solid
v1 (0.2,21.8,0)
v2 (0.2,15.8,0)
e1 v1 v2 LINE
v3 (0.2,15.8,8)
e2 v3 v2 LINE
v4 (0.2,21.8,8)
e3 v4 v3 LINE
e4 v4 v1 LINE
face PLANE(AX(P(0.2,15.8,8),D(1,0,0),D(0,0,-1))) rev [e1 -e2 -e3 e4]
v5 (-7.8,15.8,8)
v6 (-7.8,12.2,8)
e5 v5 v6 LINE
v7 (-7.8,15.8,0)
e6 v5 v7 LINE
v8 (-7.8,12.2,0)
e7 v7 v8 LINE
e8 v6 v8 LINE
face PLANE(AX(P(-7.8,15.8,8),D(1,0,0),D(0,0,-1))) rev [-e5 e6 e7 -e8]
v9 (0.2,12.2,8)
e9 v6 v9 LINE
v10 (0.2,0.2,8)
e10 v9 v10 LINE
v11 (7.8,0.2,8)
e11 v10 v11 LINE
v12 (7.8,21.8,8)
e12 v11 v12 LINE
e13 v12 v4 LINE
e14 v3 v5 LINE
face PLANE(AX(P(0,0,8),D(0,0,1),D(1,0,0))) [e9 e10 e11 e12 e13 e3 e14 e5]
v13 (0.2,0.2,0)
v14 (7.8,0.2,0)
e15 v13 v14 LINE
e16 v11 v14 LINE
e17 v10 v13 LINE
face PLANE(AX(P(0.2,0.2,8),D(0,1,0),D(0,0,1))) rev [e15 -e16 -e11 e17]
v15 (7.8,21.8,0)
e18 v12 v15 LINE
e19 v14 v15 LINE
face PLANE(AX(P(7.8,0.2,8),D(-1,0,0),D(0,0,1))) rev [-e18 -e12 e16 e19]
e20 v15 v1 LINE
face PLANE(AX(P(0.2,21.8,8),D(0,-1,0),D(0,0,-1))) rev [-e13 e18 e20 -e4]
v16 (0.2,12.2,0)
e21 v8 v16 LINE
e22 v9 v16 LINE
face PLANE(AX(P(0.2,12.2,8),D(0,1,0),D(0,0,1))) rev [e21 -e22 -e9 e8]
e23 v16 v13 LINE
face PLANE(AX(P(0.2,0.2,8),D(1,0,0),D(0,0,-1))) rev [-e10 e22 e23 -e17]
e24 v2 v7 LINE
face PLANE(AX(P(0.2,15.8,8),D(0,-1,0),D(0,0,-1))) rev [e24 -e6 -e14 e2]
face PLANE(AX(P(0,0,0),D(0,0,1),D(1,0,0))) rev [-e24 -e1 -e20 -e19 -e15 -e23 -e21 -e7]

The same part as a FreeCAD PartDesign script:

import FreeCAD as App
import Part
import Sketcher

doc = App.newDocument("Part")
body = doc.addObject("PartDesign::Body", "Body")

# Sketch on XY plane
sketch1 = body.newObject("Sketcher::SketchObject", "Sketch")
sketch1.AttachmentSupport = (doc.getObject("XY_Plane"), [""])
sketch1.MapMode = "FlatFace"
sketch1.addGeometry(Part.LineSegment(App.Vector(0.2, 0.2, 0), App.Vector(7.8, 0.2, 0)), False)
sketch1.addGeometry(Part.LineSegment(App.Vector(7.8, 0.2, 0), App.Vector(7.8, 21.8, 0)), False)
sketch1.addGeometry(Part.LineSegment(App.Vector(7.8, 21.8, 0), App.Vector(0.2, 21.8, 0)), False)
sketch1.addGeometry(Part.LineSegment(App.Vector(0.2, 21.8, 0), App.Vector(0.2, 15.8, 0)), False)
sketch1.addGeometry(Part.LineSegment(App.Vector(0.2, 15.8, 0), App.Vector(-7.8, 15.8, 0)), False)
sketch1.addGeometry(Part.LineSegment(App.Vector(-7.8, 15.8, 0), App.Vector(-7.8, 12.2, 0)), False)
sketch1.addGeometry(Part.LineSegment(App.Vector(-7.8, 12.2, 0), App.Vector(0.2, 12.2, 0)), False)
sketch1.addGeometry(Part.LineSegment(App.Vector(0.2, 12.2, 0), App.Vector(0.2, 0.2, 0)), False)
sketch1.addConstraint(Sketcher.Constraint("Coincident", 0, 2, 1, 1))
sketch1.addConstraint(Sketcher.Constraint("Coincident", 1, 2, 2, 1))
sketch1.addConstraint(Sketcher.Constraint("Coincident", 2, 2, 3, 1))
sketch1.addConstraint(Sketcher.Constraint("Coincident", 3, 2, 4, 1))
sketch1.addConstraint(Sketcher.Constraint("Coincident", 4, 2, 5, 1))
sketch1.addConstraint(Sketcher.Constraint("Coincident", 5, 2, 6, 1))
sketch1.addConstraint(Sketcher.Constraint("Coincident", 6, 2, 7, 1))
sketch1.addConstraint(Sketcher.Constraint("Coincident", 7, 2, 0, 1))
sketch1.addConstraint(Sketcher.Constraint("Horizontal", 0))
sketch1.addConstraint(Sketcher.Constraint("Vertical", 1))
sketch1.addConstraint(Sketcher.Constraint("Horizontal", 2))
sketch1.addConstraint(Sketcher.Constraint("Vertical", 3))
sketch1.addConstraint(Sketcher.Constraint("Horizontal", 4))
sketch1.addConstraint(Sketcher.Constraint("Vertical", 5))
sketch1.addConstraint(Sketcher.Constraint("Horizontal", 6))
sketch1.addConstraint(Sketcher.Constraint("Vertical", 7))
sketch1.addConstraint(Sketcher.Constraint("Vertical", 3, 2, 6, 2))
sketch1.addConstraint(Sketcher.Constraint("DistanceX", 4, 2, 4, 1, 8.0))
sketch1.addConstraint(Sketcher.Constraint("DistanceY", 3, 2, 3, 1, 6.0))
sketch1.addConstraint(Sketcher.Constraint("DistanceY", 7, 2, 7, 1, 12.0))
sketch1.addConstraint(Sketcher.Constraint("DistanceX", 0, 1, 0, 2, 7.6))
sketch1.addConstraint(Sketcher.Constraint("DistanceY", 1, 1, 1, 2, 21.6))
sketch1.addConstraint(Sketcher.Constraint("DistanceX", -1, 1, 0, 2, 7.8))
sketch1.addConstraint(Sketcher.Constraint("DistanceY", -1, 1, 0, 2, 0.2))
pad1 = body.newObject("PartDesign::Pad", "Pad")
pad1.Profile = sketch1
pad1.Length = 8

doc.recompute()
